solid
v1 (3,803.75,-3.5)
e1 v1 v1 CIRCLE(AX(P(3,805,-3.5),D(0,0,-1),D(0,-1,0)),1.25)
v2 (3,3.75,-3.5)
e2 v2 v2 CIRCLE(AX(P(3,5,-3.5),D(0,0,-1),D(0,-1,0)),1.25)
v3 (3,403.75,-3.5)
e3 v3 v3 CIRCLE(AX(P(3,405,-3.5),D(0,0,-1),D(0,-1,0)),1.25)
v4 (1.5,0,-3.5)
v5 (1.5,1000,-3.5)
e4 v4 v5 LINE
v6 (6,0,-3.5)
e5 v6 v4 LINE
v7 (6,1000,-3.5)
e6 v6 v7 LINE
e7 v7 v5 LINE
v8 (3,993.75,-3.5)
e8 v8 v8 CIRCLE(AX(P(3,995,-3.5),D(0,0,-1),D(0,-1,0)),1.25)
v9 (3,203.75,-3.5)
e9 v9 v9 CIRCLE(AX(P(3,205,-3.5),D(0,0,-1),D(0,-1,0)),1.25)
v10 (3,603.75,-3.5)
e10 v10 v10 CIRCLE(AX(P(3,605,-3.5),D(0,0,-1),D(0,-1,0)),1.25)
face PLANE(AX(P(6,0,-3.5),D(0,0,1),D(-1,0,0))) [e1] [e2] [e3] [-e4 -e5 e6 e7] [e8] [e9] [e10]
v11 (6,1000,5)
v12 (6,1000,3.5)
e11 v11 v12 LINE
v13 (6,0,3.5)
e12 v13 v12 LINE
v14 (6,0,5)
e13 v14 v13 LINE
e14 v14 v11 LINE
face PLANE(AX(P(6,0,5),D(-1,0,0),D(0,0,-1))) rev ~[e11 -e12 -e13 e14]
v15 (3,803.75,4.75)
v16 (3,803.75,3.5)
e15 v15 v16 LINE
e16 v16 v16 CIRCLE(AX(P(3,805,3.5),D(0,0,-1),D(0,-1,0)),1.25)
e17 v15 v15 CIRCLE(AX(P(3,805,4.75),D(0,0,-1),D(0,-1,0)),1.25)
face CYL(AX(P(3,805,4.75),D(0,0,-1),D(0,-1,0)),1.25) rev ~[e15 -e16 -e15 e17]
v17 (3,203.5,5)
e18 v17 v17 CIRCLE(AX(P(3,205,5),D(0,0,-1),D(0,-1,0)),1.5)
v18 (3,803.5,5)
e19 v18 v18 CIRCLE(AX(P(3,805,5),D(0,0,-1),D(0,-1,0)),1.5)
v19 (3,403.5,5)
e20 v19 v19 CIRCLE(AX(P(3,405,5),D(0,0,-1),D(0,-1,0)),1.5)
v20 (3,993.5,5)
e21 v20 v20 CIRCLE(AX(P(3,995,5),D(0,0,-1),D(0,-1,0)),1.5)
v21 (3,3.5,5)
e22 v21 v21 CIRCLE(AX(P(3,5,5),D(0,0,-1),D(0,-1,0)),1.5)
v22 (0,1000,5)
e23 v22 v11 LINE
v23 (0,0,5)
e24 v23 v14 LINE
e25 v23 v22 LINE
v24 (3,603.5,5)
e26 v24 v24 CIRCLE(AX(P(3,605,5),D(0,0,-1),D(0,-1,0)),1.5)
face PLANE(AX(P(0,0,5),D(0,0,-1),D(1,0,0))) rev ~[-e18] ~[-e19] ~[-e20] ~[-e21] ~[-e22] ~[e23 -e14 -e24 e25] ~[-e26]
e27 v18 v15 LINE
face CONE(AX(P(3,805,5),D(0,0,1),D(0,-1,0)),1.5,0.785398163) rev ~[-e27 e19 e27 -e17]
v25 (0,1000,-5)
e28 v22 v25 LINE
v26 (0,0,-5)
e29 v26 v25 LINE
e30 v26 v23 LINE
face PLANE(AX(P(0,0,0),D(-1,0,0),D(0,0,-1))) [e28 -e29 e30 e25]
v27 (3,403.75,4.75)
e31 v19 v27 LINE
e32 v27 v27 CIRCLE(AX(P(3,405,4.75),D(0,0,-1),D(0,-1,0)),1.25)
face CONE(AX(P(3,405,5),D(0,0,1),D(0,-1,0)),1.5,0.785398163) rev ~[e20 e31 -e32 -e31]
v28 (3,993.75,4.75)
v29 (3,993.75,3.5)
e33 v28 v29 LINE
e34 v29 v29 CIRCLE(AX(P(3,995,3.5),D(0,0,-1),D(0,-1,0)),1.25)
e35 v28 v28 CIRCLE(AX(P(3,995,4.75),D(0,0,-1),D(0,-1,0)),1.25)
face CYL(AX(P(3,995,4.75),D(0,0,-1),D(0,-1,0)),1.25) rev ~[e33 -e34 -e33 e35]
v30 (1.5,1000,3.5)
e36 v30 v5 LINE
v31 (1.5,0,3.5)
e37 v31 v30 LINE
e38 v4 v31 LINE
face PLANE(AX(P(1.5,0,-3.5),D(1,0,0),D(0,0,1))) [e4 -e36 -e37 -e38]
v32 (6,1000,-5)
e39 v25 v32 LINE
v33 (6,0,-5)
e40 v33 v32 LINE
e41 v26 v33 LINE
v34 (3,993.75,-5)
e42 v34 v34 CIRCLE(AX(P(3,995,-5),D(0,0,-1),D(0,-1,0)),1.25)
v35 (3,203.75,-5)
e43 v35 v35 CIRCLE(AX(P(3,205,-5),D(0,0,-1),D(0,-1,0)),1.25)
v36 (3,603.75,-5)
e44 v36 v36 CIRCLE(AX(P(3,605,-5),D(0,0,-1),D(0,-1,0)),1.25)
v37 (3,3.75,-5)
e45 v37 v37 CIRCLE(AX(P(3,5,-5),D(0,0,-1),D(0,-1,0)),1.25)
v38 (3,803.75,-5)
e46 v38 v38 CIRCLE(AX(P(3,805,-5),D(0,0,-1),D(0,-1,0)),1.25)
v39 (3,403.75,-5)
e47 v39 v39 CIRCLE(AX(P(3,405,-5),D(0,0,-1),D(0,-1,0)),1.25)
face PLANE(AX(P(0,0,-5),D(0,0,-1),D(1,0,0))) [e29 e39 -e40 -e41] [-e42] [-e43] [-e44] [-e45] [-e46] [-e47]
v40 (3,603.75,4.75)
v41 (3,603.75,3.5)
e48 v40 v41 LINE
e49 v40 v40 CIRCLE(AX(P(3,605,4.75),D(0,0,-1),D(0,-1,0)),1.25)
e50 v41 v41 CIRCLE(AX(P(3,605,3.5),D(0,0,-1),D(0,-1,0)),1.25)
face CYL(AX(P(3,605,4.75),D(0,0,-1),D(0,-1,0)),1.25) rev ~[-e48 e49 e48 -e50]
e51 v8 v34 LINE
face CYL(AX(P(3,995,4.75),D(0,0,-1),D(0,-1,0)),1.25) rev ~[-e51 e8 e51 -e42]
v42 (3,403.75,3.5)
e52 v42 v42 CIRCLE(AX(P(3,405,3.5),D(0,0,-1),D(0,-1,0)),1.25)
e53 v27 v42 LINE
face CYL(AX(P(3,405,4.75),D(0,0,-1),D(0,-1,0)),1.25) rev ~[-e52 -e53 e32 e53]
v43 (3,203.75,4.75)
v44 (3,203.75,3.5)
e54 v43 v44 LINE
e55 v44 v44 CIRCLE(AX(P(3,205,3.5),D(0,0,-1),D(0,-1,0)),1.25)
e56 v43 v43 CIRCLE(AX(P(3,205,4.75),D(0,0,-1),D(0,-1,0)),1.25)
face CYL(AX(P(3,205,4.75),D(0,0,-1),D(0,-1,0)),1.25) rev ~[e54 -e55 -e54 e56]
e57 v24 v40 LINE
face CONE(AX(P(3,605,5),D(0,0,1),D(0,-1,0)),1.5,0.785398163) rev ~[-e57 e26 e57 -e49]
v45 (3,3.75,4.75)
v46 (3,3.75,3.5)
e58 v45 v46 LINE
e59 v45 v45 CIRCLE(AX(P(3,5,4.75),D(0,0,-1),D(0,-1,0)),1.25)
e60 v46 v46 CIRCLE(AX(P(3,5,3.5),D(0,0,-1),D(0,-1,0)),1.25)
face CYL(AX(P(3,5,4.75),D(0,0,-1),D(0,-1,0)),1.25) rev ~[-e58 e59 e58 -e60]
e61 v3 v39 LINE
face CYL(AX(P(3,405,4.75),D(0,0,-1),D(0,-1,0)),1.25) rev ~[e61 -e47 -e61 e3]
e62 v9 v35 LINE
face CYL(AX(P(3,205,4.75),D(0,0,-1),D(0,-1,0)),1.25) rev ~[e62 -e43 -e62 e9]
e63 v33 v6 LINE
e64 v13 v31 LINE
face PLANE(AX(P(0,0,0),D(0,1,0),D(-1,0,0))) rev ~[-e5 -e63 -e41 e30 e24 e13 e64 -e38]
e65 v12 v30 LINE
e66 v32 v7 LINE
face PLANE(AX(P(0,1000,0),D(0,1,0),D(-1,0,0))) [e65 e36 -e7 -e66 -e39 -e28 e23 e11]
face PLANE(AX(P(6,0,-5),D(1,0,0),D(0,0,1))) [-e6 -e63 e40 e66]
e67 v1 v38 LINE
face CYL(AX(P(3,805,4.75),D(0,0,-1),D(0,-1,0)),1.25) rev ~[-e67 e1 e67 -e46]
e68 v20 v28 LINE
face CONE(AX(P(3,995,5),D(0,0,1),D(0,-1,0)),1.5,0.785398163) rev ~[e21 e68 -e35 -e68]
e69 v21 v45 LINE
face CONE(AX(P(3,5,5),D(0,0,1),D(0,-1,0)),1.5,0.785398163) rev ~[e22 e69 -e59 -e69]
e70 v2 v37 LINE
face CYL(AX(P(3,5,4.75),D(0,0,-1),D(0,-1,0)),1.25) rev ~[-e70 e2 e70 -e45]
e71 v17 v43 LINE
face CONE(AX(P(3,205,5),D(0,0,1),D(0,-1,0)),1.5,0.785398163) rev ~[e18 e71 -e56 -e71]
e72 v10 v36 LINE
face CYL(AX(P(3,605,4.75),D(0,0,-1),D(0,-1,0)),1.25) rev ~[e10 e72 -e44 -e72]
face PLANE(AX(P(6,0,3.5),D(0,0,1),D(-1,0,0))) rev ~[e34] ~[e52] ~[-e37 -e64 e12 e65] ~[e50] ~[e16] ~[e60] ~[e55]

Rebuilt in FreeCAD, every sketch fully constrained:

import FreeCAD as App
import Part
import Sketcher

V = App.Vector
Q = App.Units.Quantity

doc = App.newDocument("Part")
params = doc.addObject("Spreadsheet::Sheet", "Params")
for row, (alias, value) in enumerate([
    ("sketch1_width", "6 mm"),
    ("sketch1_height", "1.5 mm"),
    ("pad1_length", "1000 mm"),
    ("sketch2_diameter", "2.5 mm"),
    ("hole_diameter", "2.5 mm"),
    ("hole_csink_diameter", "3 mm"),
], start=1):
    params.set(f"A{row}", alias)
    params.set(f"B{row}", "=" + value)
    params.setAlias(f"B{row}", alias)

body = doc.addObject("PartDesign::Body", "Body")

# Sketch on XZ plane
sketch1 = body.newObject("Sketcher::SketchObject", "Sketch")
sketch1.AttachmentSupport = (doc.getObject("XZ_Plane"), [""])
sketch1.MapMode = "FlatFace"
sketch1.addGeometry(Part.LineSegment(V(0, -5, 0), V(0, 5, 0)), False)
sketch1.addGeometry(Part.LineSegment(V(0, 5, 0), V(6, 5, 0)), False)
sketch1.addGeometry(Part.LineSegment(V(6, 5, 0), V(6, 3.5, 0)), False)
sketch1.addGeometry(Part.LineSegment(V(6, 3.5, 0), V(1.5, 3.5, 0)), False)
sketch1.addGeometry(Part.LineSegment(V(1.5, 3.5, 0), V(1.5, -3.5, 0)), False)
sketch1.addGeometry(Part.LineSegment(V(1.5, -3.5, 0), V(6, -3.5, 0)), False)
sketch1.addGeometry(Part.LineSegment(V(6, -3.5, 0), V(6, -5, 0)), False)
sketch1.addGeometry(Part.LineSegment(V(6, -5, 0), V(0, -5, 0)), False)
sketch1.addConstraint(Sketcher.Constraint("Coincident", 0, 2, 1, 1))
sketch1.addConstraint(Sketcher.Constraint("Coincident", 1, 2, 2, 1))
sketch1.addConstraint(Sketcher.Constraint("Coincident", 2, 2, 3, 1))
sketch1.addConstraint(Sketcher.Constraint("Coincident", 3, 2, 4, 1))
sketch1.addConstraint(Sketcher.Constraint("Coincident", 4, 2, 5, 1))
sketch1.addConstraint(Sketcher.Constraint("Coincident", 5, 2, 6, 1))
sketch1.addConstraint(Sketcher.Constraint("Coincident", 6, 2, 7, 1))
sketch1.addConstraint(Sketcher.Constraint("Coincident", 7, 2, 0, 1))
sketch1.addConstraint(Sketcher.Constraint("Vertical", 0))
sketch1.addConstraint(Sketcher.Constraint("Horizontal", 1))
sketch1.addConstraint(Sketcher.Constraint("Vertical", 2))
sketch1.addConstraint(Sketcher.Constraint("Horizontal", 3))
sketch1.addConstraint(Sketcher.Constraint("Vertical", 4))
sketch1.addConstraint(Sketcher.Constraint("Horizontal", 5))
sketch1.addConstraint(Sketcher.Constraint("Vertical", 6))
sketch1.addConstraint(Sketcher.Constraint("Horizontal", 7))
sketch1.addConstraint(Sketcher.Constraint("Symmetric", 0, 2, 7, 2, -1, 1))
sketch1.addConstraint(Sketcher.Constraint("Symmetric", 2, 2, 5, 2, -1))
sketch1.addConstraint(Sketcher.Constraint("DistanceX", 1, 1, 1, 2, Q("6 mm")))
sketch1.addConstraint(Sketcher.Constraint("DistanceY", 2, 2, 2, 1, Q("1.5 mm")))
sketch1.addConstraint(Sketcher.Constraint("DistanceY", -1, 1, 0, 2, Q("5 mm")))
sketch1.addConstraint(Sketcher.Constraint("DistanceX", -1, 1, 3, 2, Q("1.5 mm")))
sketch1.setExpression("Constraints[18]", "Params.sketch1_width")
sketch1.setExpression("Constraints[19]", "Params.sketch1_height")
pad1 = body.newObject("PartDesign::Pad", "Pad")
pad1.Profile = sketch1
pad1.setExpression("Length", "Params.pad1_length")
pad1.Reversed = True

# Sketch on XY plane
sketch2 = body.newObject("Sketcher::SketchObject", "Sketch001")
sketch2.AttachmentSupport = (doc.getObject("XY_Plane"), [""])
sketch2.MapMode = "FlatFace"
sketch2.AttachmentOffset = App.Placement(V(0, 0, 5), App.Rotation())
sketch2.addGeometry(Part.Circle(V(3, 5, 0), V(0, 0, 1), 1.2), False)
sketch2.addGeometry(Part.Circle(V(3, 205, 0), V(0, 0, 1), 1.2), False)
sketch2.addGeometry(Part.Circle(V(3, 405, 0), V(0, 0, 1), 1.2), False)
sketch2.addGeometry(Part.Circle(V(3, 605, 0), V(0, 0, 1), 1.2), False)
sketch2.addGeometry(Part.Circle(V(3, 805, 0), V(0, 0, 1), 1.2), False)
sketch2.addGeometry(Part.Circle(V(3, 995, 0), V(0, 0, 1), 1.2), False)
sketch2.addConstraint(Sketcher.Constraint("Equal", 0, 1))
sketch2.addConstraint(Sketcher.Constraint("Equal", 1, 2))
sketch2.addConstraint(Sketcher.Constraint("Equal", 2, 3))
sketch2.addConstraint(Sketcher.Constraint("Equal", 3, 4))
sketch2.addConstraint(Sketcher.Constraint("Equal", 4, 5))
sketch2.addConstraint(Sketcher.Constraint("Vertical", 0, 3, 1, 3))
sketch2.addConstraint(Sketcher.Constraint("Vertical", 1, 3, 2, 3))
sketch2.addConstraint(Sketcher.Constraint("Vertical", 2, 3, 3, 3))
sketch2.addConstraint(Sketcher.Constraint("Vertical", 3, 3, 4, 3))
sketch2.addConstraint(Sketcher.Constraint("Vertical", 4, 3, 5, 3))
sketch2.addConstraint(Sketcher.Constraint("Diameter", 0, Q("2.5 mm")))
sketch2.addConstraint(Sketcher.Constraint("DistanceX", -1, 1, 0, 3, Q("3 mm")))
sketch2.addConstraint(Sketcher.Constraint("DistanceY", -1, 1, 0, 3, Q("5 mm")))
sketch2.addConstraint(Sketcher.Constraint("DistanceY", -1, 1, 1, 3, Q("205 mm")))
sketch2.addConstraint(Sketcher.Constraint("DistanceY", -1, 1, 2, 3, Q("405 mm")))
sketch2.addConstraint(Sketcher.Constraint("DistanceY", -1, 1, 3, 3, Q("605 mm")))
sketch2.addConstraint(Sketcher.Constraint("DistanceY", -1, 1, 4, 3, Q("805 mm")))
sketch2.addConstraint(Sketcher.Constraint("DistanceY", -1, 1, 5, 3, Q("995 mm")))
sketch2.setExpression("Constraints[10]", "Params.sketch2_diameter")
doc.recompute()
hole = body.newObject("PartDesign::Hole", "Hole")
hole.Profile = sketch2
hole.ThreadType = "None"
hole.setExpression("Diameter", "Params.hole_diameter")
hole.DepthType = "ThroughAll"
hole.HoleCutType = "Countersink"
hole.setExpression("HoleCutDiameter", "Params.hole_csink_diameter")
hole.HoleCutCountersinkAngle = 90

doc.recompute()
